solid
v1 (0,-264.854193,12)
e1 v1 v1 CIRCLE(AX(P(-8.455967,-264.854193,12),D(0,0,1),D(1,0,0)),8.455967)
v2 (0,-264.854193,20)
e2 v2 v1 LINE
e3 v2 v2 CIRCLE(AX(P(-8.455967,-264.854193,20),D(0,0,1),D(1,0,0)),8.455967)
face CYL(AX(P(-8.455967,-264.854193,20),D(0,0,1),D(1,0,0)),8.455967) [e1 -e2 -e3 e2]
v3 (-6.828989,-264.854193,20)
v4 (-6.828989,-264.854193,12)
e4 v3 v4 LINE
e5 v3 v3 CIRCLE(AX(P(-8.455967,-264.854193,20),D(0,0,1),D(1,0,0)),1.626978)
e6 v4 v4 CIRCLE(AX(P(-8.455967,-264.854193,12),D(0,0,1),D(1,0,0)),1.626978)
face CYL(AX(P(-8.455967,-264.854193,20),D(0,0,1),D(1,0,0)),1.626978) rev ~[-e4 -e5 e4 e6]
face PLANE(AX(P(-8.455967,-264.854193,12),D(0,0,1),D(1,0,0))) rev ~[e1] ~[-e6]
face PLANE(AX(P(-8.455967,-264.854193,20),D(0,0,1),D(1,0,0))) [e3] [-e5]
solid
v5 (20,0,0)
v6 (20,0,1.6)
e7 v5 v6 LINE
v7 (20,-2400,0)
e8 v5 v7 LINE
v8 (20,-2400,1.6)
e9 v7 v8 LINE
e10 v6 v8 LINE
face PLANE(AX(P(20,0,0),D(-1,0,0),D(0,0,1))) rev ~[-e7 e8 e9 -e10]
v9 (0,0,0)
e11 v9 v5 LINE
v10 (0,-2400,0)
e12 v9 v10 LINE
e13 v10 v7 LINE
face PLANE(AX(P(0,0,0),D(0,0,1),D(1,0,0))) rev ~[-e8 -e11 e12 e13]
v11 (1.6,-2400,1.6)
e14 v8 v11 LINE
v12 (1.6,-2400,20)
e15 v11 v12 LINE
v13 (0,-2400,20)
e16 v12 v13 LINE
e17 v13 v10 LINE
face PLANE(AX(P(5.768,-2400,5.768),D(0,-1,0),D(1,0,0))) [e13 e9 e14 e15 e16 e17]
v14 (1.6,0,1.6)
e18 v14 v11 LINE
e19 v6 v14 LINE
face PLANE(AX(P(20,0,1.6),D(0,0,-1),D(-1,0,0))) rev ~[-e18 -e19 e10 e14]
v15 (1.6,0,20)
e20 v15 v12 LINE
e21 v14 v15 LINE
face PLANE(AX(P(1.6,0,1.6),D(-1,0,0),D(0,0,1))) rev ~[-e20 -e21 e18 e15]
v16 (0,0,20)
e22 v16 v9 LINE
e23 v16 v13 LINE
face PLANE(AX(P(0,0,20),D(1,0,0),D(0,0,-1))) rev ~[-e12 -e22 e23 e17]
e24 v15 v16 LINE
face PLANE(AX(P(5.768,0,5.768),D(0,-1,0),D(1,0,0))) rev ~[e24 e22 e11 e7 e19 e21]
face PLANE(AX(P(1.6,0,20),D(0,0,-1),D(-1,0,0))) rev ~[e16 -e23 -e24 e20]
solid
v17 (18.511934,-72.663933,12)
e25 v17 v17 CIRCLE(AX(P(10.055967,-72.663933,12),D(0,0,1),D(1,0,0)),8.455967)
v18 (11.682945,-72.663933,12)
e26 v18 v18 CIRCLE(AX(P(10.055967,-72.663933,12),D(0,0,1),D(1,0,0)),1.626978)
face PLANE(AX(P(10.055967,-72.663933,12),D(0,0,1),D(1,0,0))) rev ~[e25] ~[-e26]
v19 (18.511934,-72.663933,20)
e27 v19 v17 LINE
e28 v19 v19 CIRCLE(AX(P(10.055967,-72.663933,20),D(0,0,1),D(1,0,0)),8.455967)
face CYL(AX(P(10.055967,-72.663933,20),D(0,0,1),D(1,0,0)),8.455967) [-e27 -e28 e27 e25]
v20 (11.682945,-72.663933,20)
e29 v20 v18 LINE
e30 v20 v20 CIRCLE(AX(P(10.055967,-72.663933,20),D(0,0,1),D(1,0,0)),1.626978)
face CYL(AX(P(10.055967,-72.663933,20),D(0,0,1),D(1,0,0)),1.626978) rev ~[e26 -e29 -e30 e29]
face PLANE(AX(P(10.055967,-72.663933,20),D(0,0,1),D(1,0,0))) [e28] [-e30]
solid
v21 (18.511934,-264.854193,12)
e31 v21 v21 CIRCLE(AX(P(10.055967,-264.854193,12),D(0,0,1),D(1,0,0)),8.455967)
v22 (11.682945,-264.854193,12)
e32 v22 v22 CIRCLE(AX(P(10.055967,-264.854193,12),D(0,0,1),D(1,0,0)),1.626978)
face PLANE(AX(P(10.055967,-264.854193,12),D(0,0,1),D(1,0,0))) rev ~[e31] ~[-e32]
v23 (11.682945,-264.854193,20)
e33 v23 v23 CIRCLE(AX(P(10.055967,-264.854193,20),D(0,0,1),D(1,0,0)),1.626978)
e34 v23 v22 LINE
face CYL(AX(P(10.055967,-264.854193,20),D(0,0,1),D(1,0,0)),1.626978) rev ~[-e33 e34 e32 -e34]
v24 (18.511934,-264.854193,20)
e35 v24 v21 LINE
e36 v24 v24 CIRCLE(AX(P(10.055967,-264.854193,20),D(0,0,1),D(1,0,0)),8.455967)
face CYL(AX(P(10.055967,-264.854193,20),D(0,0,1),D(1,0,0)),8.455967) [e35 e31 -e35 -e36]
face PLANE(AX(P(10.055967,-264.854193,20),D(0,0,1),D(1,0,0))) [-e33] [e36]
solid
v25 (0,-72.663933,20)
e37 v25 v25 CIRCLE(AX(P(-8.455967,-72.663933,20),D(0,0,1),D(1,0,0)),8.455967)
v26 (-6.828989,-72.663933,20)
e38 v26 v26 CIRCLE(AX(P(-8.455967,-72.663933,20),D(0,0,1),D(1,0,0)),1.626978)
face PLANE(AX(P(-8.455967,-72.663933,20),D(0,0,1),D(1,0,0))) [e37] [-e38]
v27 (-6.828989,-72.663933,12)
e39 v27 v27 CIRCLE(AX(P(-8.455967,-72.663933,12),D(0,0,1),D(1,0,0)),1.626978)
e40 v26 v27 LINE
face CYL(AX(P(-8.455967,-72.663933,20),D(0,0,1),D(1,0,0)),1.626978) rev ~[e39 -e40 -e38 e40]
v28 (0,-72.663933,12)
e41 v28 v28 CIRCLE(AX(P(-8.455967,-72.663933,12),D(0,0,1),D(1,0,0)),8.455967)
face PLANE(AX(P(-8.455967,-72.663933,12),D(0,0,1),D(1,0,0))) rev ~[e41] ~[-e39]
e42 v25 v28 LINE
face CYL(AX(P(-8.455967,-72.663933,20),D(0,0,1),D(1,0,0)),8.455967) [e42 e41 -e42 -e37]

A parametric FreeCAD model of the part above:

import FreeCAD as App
import Part
import Sketcher
from FreeCAD import Vector

doc = App.newDocument("Part")
body = doc.addObject("PartDesign::Body", "Body")

sketch1 = body.newObject("Sketcher::SketchObject", "Sketch")
sketch1.AttachmentSupport = (doc.getObject("XZ_Plane"), [""])
sketch1.MapMode = "FlatFace"
sketch1.addGeometry([
    Part.LineSegment(Vector(0, 20, 0), Vector(0, 0, 0)),
    Part.LineSegment(Vector(0, 0, 0), Vector(20, 0, 0)),
    Part.LineSegment(Vector(20, 0, 0), Vector(20, 1.6, 0)),
    Part.LineSegment(Vector(20, 1.6, 0), Vector(1.6, 1.6, 0)),
    Part.LineSegment(Vector(1.6, 1.6, 0), Vector(1.6, 20, 0)),
    Part.LineSegment(Vector(1.6, 20, 0), Vector(0, 20, 0)),
], False)
sketch1.addConstraint([
    Sketcher.Constraint("Coincident", 0, 2, 1, 1),
    Sketcher.Constraint("Coincident", 1, 2, 2, 1),
    Sketcher.Constraint("Coincident", 2, 2, 3, 1),
    Sketcher.Constraint("Coincident", 3, 2, 4, 1),
    Sketcher.Constraint("Coincident", 4, 2, 5, 1),
    Sketcher.Constraint("Coincident", 5, 2, 0, 1),
    Sketcher.Constraint("Vertical", 0),
    Sketcher.Constraint("Horizontal", 1),
    Sketcher.Constraint("Vertical", 2),
    Sketcher.Constraint("Horizontal", 3),
    Sketcher.Constraint("Vertical", 4),
    Sketcher.Constraint("Horizontal", 5),
    Sketcher.Constraint("Coincident", 0, 2, -1, 1),
    Sketcher.Constraint("Equal", 1, 0),
    Sketcher.Constraint("Equal", 5, 2),
    Sketcher.Constraint("DistanceX", 1, 1, 1, 2, 20.0),
    Sketcher.Constraint("DistanceX", 3, 2, 3, 1, 18.4),
])
pad1 = body.newObject("PartDesign::Pad", "Pad")
pad1.Profile = sketch1
pad1.Length = 2400
body2 = doc.addObject("PartDesign::Body", "Body001")
body2.AllowCompound = True

sketch2 = body2.newObject("Sketcher::SketchObject", "Sketch001")
sketch2.AttachmentSupport = (doc.getObject("XY_Plane001"), [""])
sketch2.MapMode = "FlatFace"
sketch2.AttachmentOffset = App.Placement(Vector(0, 0, 20), App.Rotation())
sketch2.addGeometry([
    Part.Circle(Vector(-8.5, -264.9, 0), Vector(0, 0, 1), 8.5),
    Part.Circle(Vector(-8.5, -264.9, 0), Vector(0, 0, 1), 1.6),
    Part.Circle(Vector(10.1, -264.9, 0), Vector(0, 0, 1), 8.5),
    Part.Circle(Vector(10.1, -264.9, 0), Vector(0, 0, 1), 1.6),
    Part.Circle(Vector(-8.5, -72.7, 0), Vector(0, 0, 1), 8.5),
    Part.Circle(Vector(-8.5, -72.7, 0), Vector(0, 0, 1), 1.6),
    Part.Circle(Vector(10.1, -72.7, 0), Vector(0, 0, 1), 8.5),
    Part.Circle(Vector(10.1, -72.7, 0), Vector(0, 0, 1), 1.6),
], False)
sketch2.addConstraint([
    Sketcher.Constraint("Coincident", 1, 3, 0, 3),
    Sketcher.Constraint("Coincident", 3, 3, 2, 3),
    Sketcher.Constraint("Coincident", 5, 3, 4, 3),
    Sketcher.Constraint("Coincident", 7, 3, 6, 3),
    Sketcher.Constraint("Equal", 0, 2),
    Sketcher.Constraint("Equal", 1, 3),
    Sketcher.Constraint("Equal", 2, 4),
    Sketcher.Constraint("Equal", 3, 5),
    Sketcher.Constraint("Equal", 4, 6),
    Sketcher.Constraint("Equal", 5, 7),
    Sketcher.Constraint("Horizontal", 1, 3, 2, 3),
    Sketcher.Constraint("Horizontal", 5, 3, 6, 3),
    Sketcher.Constraint("Vertical", 1, 3, 4, 3),
    Sketcher.Constraint("Vertical", 3, 3, 6, 3),
    Sketcher.Constraint("Diameter", 0, 16.911934),
    Sketcher.Constraint("Diameter", 1, 3.253956),
    Sketcher.Constraint("DistanceY", 0, 3, 4, 3, 192.19026),
    Sketcher.Constraint("DistanceX", 0, 3, -1, 1, 8.455967),
    Sketcher.Constraint("DistanceY", 0, 3, -1, 1, 264.854193),
    Sketcher.Constraint("DistanceX", -1, 1, 2, 3, 10.055967),
])
pad2 = body2.newObject("PartDesign::Pad", "Pad001")
pad2.Profile = sketch2
pad2.Length = 8
pad2.Reversed = True

doc.recompute()
